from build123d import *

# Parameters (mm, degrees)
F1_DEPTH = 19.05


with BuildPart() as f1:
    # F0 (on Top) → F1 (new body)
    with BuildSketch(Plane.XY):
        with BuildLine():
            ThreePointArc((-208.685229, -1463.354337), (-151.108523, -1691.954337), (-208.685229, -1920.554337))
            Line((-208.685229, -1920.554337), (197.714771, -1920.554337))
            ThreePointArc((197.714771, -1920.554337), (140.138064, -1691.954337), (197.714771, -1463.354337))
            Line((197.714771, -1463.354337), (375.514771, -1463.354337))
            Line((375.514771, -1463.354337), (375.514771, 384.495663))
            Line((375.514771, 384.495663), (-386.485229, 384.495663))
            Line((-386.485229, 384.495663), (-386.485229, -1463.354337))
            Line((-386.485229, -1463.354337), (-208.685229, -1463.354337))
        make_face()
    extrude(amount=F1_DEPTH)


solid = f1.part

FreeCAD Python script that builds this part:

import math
import FreeCAD as App
import Part
import Sketcher

V = App.Vector
Q = App.Units.Quantity

doc = App.newDocument("Part")
body = doc.addObject("PartDesign::Body", "Body")

sketch1 = doc.addObject("Sketcher::SketchObject", "Sketch")
body.addObject(sketch1)
sketch1.AttachmentSupport = (doc.XY_Plane, [""])
sketch1.MapMode = "FlatFace"
sketch1.addGeometry([
    Part.ArcOfCircle(Part.Circle(V(-634, -1692, 0), V(0, 0, 1), 483), math.radians(-28), math.radians(28)),
    Part.LineSegment(V(-209, -1921, 0), V(198, -1921, 0)),
    Part.ArcOfCircle(Part.Circle(V(623, -1692, 0), V(0, 0, 1), 483), math.radians(152), math.radians(208)),
    Part.LineSegment(V(198, -1463, 0), V(376, -1463, 0)),
    Part.LineSegment(V(376, -1463, 0), V(376, 384, 0)),
    Part.LineSegment(V(376, 384, 0), V(-386, 384, 0)),
    Part.LineSegment(V(-386, 384, 0), V(-386, -1463, 0)),
    Part.LineSegment(V(-386, -1463, 0), V(-209, -1463, 0)),
], False)
sketch1.addConstraint([
    Sketcher.Constraint("Coincident", 0, 1, 1, 1),
    Sketcher.Constraint("Coincident", 1, 2, 2, 2),
    Sketcher.Constraint("Coincident", 2, 1, 3, 1),
    Sketcher.Constraint("Coincident", 3, 2, 4, 1),
    Sketcher.Constraint("Coincident", 4, 2, 5, 1),
    Sketcher.Constraint("Coincident", 5, 2, 6, 1),
    Sketcher.Constraint("Coincident", 6, 2, 7, 1),
    Sketcher.Constraint("Coincident", 7, 2, 0, 2),
    Sketcher.Constraint("Horizontal", 1),
    Sketcher.Constraint("Horizontal", 3),
    Sketcher.Constraint("Vertical", 4),
    Sketcher.Constraint("Horizontal", 5),
    Sketcher.Constraint("Vertical", 6),
    Sketcher.Constraint("Horizontal", 7),
    Sketcher.Constraint("Horizontal", 0, 3, 2, 3),
    Sketcher.Constraint("Horizontal", 3, 2, 6, 2),
    Sketcher.Constraint("Vertical", 1, 2, 2, 1),
    Sketcher.Constraint("Equal", 3, 7),
    Sketcher.Constraint("Radius", 0, Q("19.0000002 in")),
    Sketcher.Constraint("Radius", 2, Q("18.9999999 in")),
    Sketcher.Constraint("DistanceX", 1, 1, 1, 2, Q("16 in")),
    Sketcher.Constraint("DistanceX", 3, 1, 3, 2, Q("7 in")),
    Sketcher.Constraint("DistanceY", 1, 2, 2, 3, Q("9 in")),
    Sketcher.Constraint("DistanceY", 4, 1, 4, 2, Q("72.75 in")),
    Sketcher.Constraint("DistanceX", -1, 1, 2, 3, Q("622.73806 mm")),
    Sketcher.Constraint("DistanceY", 0, 3, -1, 1, Q("1691.954337 mm")),
])
pad1 = doc.addObject("PartDesign::Pad", "Pad")
body.addObject(pad1)
pad1.Profile = sketch1
pad1.Length = Q("0.75 in")

doc.recompute()
